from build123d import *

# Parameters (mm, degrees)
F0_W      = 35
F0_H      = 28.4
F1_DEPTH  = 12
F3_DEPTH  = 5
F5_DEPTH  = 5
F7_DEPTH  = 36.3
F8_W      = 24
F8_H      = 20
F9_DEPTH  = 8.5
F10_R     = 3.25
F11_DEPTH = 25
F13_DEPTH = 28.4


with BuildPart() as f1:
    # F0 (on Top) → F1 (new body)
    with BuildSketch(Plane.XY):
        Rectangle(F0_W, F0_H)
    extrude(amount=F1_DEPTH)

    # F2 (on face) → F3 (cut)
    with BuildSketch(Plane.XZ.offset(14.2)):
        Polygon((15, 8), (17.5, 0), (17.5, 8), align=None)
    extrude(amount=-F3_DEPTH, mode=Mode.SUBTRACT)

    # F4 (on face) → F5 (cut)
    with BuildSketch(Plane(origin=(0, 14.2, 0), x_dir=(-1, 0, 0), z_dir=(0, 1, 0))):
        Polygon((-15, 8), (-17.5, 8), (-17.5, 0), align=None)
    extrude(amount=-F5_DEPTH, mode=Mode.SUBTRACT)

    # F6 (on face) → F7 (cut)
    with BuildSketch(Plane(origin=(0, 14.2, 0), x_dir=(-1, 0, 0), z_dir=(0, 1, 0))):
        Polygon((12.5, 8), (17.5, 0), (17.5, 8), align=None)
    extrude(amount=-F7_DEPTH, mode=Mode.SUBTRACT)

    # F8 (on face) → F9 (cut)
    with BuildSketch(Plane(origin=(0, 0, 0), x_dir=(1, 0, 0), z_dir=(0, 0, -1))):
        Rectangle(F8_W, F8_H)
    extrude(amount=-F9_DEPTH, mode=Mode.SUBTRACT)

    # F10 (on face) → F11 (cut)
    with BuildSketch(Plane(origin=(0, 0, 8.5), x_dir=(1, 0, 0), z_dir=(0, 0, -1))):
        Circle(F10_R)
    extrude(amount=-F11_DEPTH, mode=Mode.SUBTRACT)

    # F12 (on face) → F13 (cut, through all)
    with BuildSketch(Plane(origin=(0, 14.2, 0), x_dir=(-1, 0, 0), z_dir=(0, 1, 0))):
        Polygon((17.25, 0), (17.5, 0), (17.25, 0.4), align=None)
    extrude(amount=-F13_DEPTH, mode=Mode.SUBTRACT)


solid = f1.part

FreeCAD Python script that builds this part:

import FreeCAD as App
import Part
import Sketcher

V = App.Vector

doc = App.newDocument("Part")
body = doc.addObject("PartDesign::Body", "Body")

# Sketch on XY plane
sketch1 = body.newObject("Sketcher::SketchObject", "Sketch")
sketch1.AttachmentSupport = (doc.getObject("XY_Plane"), [""])
sketch1.MapMode = "FlatFace"
sketch1.addGeometry(Part.LineSegment(V(-18, 14, 0), V(-18, -14, 0)), False)
sketch1.addGeometry(Part.LineSegment(V(-18, -14, 0), V(18, -14, 0)), False)
sketch1.addGeometry(Part.LineSegment(V(18, -14, 0), V(18, 14, 0)), False)
sketch1.addGeometry(Part.LineSegment(V(18, 14, 0), V(-18, 14, 0)), False)
sketch1.addConstraint(Sketcher.Constraint("Coincident", 0, 2, 1, 1))
sketch1.addConstraint(Sketcher.Constraint("Coincident", 1, 2, 2, 1))
sketch1.addConstraint(Sketcher.Constraint("Coincident", 2, 2, 3, 1))
sketch1.addConstraint(Sketcher.Constraint("Coincident", 3, 2, 0, 1))
sketch1.addConstraint(Sketcher.Constraint("Vertical", 0))
sketch1.addConstraint(Sketcher.Constraint("Horizontal", 1))
sketch1.addConstraint(Sketcher.Constraint("Vertical", 2))
sketch1.addConstraint(Sketcher.Constraint("Horizontal", 3))
sketch1.addConstraint(Sketcher.Constraint("Symmetric", 0, 2, 2, 2, -1, 1))
sketch1.addConstraint(Sketcher.Constraint("DistanceX", 1, 1, 1, 2, 35.0))
sketch1.addConstraint(Sketcher.Constraint("DistanceY", 0, 2, 0, 1, 28.4))
pad1 = body.newObject("PartDesign::Pad", "Pad")
pad1.Profile = sketch1
pad1.Length = 12

# Sketch on XZ plane
sketch2 = body.newObject("Sketcher::SketchObject", "Sketch001")
sketch2.AttachmentSupport = (doc.getObject("XZ_Plane"), [""])
sketch2.MapMode = "FlatFace"
sketch2.AttachmentOffset = App.Placement(V(0, 0, 14.2), App.Rotation())
sketch2.addGeometry(Part.LineSegment(V(15, 8, 0), V(17.5, 0, 0)), False)
sketch2.addGeometry(Part.LineSegment(V(17.5, 0, 0), V(17.5, 8, 0)), False)
sketch2.addGeometry(Part.LineSegment(V(17.5, 8, 0), V(15, 8, 0)), False)
sketch2.addConstraint(Sketcher.Constraint("Coincident", 0, 2, 1, 1))
sketch2.addConstraint(Sketcher.Constraint("Coincident", 1, 2, 2, 1))
sketch2.addConstraint(Sketcher.Constraint("Coincident", 2, 2, 0, 1))
sketch2.addConstraint(Sketcher.Constraint("Vertical", 1))
sketch2.addConstraint(Sketcher.Constraint("Horizontal", 2))
sketch2.addConstraint(Sketcher.Constraint("PointOnObject", 0, 2, -1))
sketch2.addConstraint(Sketcher.Constraint("DistanceY", 1, 1, 1, 2, 8.0))
sketch2.addConstraint(Sketcher.Constraint("DistanceX", 2, 2, 2, 1, 2.5))
sketch2.addConstraint(Sketcher.Constraint("DistanceX", -1, 1, 2, 2, 15.0))
pocket1 = body.newObject("PartDesign::Pocket", "Pocket")
pocket1.Profile = sketch2
pocket1.Length = 5

# Sketch on XZ plane
sketch3 = body.newObject("Sketcher::SketchObject", "Sketch002")
sketch3.AttachmentSupport = (doc.getObject("XZ_Plane"), [""])
sketch3.MapMode = "FlatFace"
sketch3.AttachmentOffset = App.Placement(V(0, 0, -14.2), App.Rotation())
sketch3.addGeometry(Part.LineSegment(V(15, 8, 0), V(17.5, 8, 0)), False)
sketch3.addGeometry(Part.LineSegment(V(17.5, 8, 0), V(17.5, 0, 0)), False)
sketch3.addGeometry(Part.LineSegment(V(17.5, 0, 0), V(15, 8, 0)), False)
sketch3.addConstraint(Sketcher.Constraint("Coincident", 0, 2, 1, 1))
sketch3.addConstraint(Sketcher.Constraint("Coincident", 1, 2, 2, 1))
sketch3.addConstraint(Sketcher.Constraint("Coincident", 2, 2, 0, 1))
sketch3.addConstraint(Sketcher.Constraint("Horizontal", 0))
sketch3.addConstraint(Sketcher.Constraint("Vertical", 1))
sketch3.addConstraint(Sketcher.Constraint("PointOnObject", 1, 2, -1))
sketch3.addConstraint(Sketcher.Constraint("DistanceY", 1, 2, 1, 1, 8.0))
sketch3.addConstraint(Sketcher.Constraint("DistanceX", 0, 1, 0, 2, 2.5))
sketch3.addConstraint(Sketcher.Constraint("DistanceX", -1, 1, 2, 2, 15.0))
pocket2 = body.newObject("PartDesign::Pocket", "Pocket001")
pocket2.Profile = sketch3
pocket2.Length = 5
pocket2.Reversed = True

# Sketch on XZ plane
sketch4 = body.newObject("Sketcher::SketchObject", "Sketch003")
sketch4.AttachmentSupport = (doc.getObject("XZ_Plane"), [""])
sketch4.MapMode = "FlatFace"
sketch4.AttachmentOffset = App.Placement(V(0, 0, -14.2), App.Rotation())
sketch4.addGeometry(Part.LineSegment(V(-12, 8, 0), V(-18, 0, 0)), False)
sketch4.addGeometry(Part.LineSegment(V(-18, 0, 0), V(-18, 8, 0)), False)
sketch4.addGeometry(Part.LineSegment(V(-18, 8, 0), V(-12, 8, 0)), False)
sketch4.addConstraint(Sketcher.Constraint("Coincident", 0, 2, 1, 1))
sketch4.addConstraint(Sketcher.Constraint("Coincident", 1, 2, 2, 1))
sketch4.addConstraint(Sketcher.Constraint("Coincident", 2, 2, 0, 1))
sketch4.addConstraint(Sketcher.Constraint("Vertical", 1))
sketch4.addConstraint(Sketcher.Constraint("Horizontal", 2))
sketch4.addConstraint(Sketcher.Constraint("PointOnObject", 0, 2, -1))
sketch4.addConstraint(Sketcher.Constraint("DistanceX", 2, 1, 2, 2, 5.0))
sketch4.addConstraint(Sketcher.Constraint("DistanceY", 1, 1, 1, 2, 8.0))
sketch4.addConstraint(Sketcher.Constraint("DistanceX", 0, 2, -1, 1, 17.5))
pocket3 = body.newObject("PartDesign::Pocket", "Pocket002")
pocket3.Profile = sketch4
pocket3.Length = 36.3
pocket3.Reversed = True

# Sketch on XY plane
sketch5 = body.newObject("Sketcher::SketchObject", "Sketch004")
sketch5.AttachmentSupport = (doc.getObject("XY_Plane"), [""])
sketch5.MapMode = "FlatFace"
sketch5.addGeometry(Part.LineSegment(V(-12, -10, 0), V(-12, 10, 0)), False)
sketch5.addGeometry(Part.LineSegment(V(-12, 10, 0), V(12, 10, 0)), False)
sketch5.addGeometry(Part.LineSegment(V(12, 10, 0), V(12, -10, 0)), False)
sketch5.addGeometry(Part.LineSegment(V(12, -10, 0), V(-12, -10, 0)), False)
sketch5.addConstraint(Sketcher.Constraint("Coincident", 0, 2, 1, 1))
sketch5.addConstraint(Sketcher.Constraint("Coincident", 1, 2, 2, 1))
sketch5.addConstraint(Sketcher.Constraint("Coincident", 2, 2, 3, 1))
sketch5.addConstraint(Sketcher.Constraint("Coincident", 3, 2, 0, 1))
sketch5.addConstraint(Sketcher.Constraint("Vertical", 0))
sketch5.addConstraint(Sketcher.Constraint("Horizontal", 1))
sketch5.addConstraint(Sketcher.Constraint("Vertical", 2))
sketch5.addConstraint(Sketcher.Constraint("Horizontal", 3))
sketch5.addConstraint(Sketcher.Constraint("Symmetric", 0, 2, 2, 2, -1, 1))
sketch5.addConstraint(Sketcher.Constraint("DistanceX", 1, 1, 1, 2, 24.0))
sketch5.addConstraint(Sketcher.Constraint("DistanceY", 0, 1, 0, 2, 20.0))
pocket4 = body.newObject("PartDesign::Pocket", "Pocket003")
pocket4.Profile = sketch5
pocket4.Length = 8.5
pocket4.Reversed = True

# Sketch on XY plane
sketch6 = body.newObject("Sketcher::SketchObject", "Sketch005")
sketch6.AttachmentSupport = (doc.getObject("XY_Plane"), [""])
sketch6.MapMode = "FlatFace"
sketch6.AttachmentOffset = App.Placement(V(0, 0, 8.5), App.Rotation())
sketch6.addGeometry(Part.Circle(V(0, 0, 0), V(0, 0, 1), 3.2), False)
sketch6.addConstraint(Sketcher.Constraint("Coincident", 0, 3, -1, 1))
sketch6.addConstraint(Sketcher.Constraint("Diameter", 0, 6.5))
pocket5 = body.newObject("PartDesign::Pocket", "Pocket004")
pocket5.Profile = sketch6
pocket5.Length = 25
pocket5.Reversed = True

# Sketch on XZ plane
sketch7 = body.newObject("Sketcher::SketchObject", "Sketch006")
sketch7.AttachmentSupport = (doc.getObject("XZ_Plane"), [""])
sketch7.MapMode = "FlatFace"
sketch7.AttachmentOffset = App.Placement(V(0, 0, -14.2), App.Rotation())
sketch7.addGeometry(Part.LineSegment(V(-17.25, 0, 0), V(-17.5, 0, 0)), False)
sketch7.addGeometry(Part.LineSegment(V(-17.5, 0, 0), V(-17.25, 0.4, 0)), False)
sketch7.addGeometry(Part.LineSegment(V(-17.25, 0.4, 0), V(-17.25, 0, 0)), False)
sketch7.addConstraint(Sketcher.Constraint("Coincident", 0, 2, 1, 1))
sketch7.addConstraint(Sketcher.Constraint("Coincident", 1, 2, 2, 1))
sketch7.addConstraint(Sketcher.Constraint("Coincident", 2, 2, 0, 1))
sketch7.addConstraint(Sketcher.Constraint("Horizontal", 0))
sketch7.addConstraint(Sketcher.Constraint("Vertical", 2))
sketch7.addConstraint(Sketcher.Constraint("PointOnObject", 0, 2, -1))
sketch7.addConstraint(Sketcher.Constraint("DistanceY", 2, 2, 2, 1, 0.4))
sketch7.addConstraint(Sketcher.Constraint("DistanceX", 0, 2, 0, 1, 0.25))
sketch7.addConstraint(Sketcher.Constraint("DistanceX", 0, 2, -1, 1, 17.5))
pocket6 = body.newObject("PartDesign::Pocket", "Pocket005")
pocket6.Profile = sketch7
pocket6.Type = "ThroughAll"
pocket6.Reversed = True

doc.recompute()
